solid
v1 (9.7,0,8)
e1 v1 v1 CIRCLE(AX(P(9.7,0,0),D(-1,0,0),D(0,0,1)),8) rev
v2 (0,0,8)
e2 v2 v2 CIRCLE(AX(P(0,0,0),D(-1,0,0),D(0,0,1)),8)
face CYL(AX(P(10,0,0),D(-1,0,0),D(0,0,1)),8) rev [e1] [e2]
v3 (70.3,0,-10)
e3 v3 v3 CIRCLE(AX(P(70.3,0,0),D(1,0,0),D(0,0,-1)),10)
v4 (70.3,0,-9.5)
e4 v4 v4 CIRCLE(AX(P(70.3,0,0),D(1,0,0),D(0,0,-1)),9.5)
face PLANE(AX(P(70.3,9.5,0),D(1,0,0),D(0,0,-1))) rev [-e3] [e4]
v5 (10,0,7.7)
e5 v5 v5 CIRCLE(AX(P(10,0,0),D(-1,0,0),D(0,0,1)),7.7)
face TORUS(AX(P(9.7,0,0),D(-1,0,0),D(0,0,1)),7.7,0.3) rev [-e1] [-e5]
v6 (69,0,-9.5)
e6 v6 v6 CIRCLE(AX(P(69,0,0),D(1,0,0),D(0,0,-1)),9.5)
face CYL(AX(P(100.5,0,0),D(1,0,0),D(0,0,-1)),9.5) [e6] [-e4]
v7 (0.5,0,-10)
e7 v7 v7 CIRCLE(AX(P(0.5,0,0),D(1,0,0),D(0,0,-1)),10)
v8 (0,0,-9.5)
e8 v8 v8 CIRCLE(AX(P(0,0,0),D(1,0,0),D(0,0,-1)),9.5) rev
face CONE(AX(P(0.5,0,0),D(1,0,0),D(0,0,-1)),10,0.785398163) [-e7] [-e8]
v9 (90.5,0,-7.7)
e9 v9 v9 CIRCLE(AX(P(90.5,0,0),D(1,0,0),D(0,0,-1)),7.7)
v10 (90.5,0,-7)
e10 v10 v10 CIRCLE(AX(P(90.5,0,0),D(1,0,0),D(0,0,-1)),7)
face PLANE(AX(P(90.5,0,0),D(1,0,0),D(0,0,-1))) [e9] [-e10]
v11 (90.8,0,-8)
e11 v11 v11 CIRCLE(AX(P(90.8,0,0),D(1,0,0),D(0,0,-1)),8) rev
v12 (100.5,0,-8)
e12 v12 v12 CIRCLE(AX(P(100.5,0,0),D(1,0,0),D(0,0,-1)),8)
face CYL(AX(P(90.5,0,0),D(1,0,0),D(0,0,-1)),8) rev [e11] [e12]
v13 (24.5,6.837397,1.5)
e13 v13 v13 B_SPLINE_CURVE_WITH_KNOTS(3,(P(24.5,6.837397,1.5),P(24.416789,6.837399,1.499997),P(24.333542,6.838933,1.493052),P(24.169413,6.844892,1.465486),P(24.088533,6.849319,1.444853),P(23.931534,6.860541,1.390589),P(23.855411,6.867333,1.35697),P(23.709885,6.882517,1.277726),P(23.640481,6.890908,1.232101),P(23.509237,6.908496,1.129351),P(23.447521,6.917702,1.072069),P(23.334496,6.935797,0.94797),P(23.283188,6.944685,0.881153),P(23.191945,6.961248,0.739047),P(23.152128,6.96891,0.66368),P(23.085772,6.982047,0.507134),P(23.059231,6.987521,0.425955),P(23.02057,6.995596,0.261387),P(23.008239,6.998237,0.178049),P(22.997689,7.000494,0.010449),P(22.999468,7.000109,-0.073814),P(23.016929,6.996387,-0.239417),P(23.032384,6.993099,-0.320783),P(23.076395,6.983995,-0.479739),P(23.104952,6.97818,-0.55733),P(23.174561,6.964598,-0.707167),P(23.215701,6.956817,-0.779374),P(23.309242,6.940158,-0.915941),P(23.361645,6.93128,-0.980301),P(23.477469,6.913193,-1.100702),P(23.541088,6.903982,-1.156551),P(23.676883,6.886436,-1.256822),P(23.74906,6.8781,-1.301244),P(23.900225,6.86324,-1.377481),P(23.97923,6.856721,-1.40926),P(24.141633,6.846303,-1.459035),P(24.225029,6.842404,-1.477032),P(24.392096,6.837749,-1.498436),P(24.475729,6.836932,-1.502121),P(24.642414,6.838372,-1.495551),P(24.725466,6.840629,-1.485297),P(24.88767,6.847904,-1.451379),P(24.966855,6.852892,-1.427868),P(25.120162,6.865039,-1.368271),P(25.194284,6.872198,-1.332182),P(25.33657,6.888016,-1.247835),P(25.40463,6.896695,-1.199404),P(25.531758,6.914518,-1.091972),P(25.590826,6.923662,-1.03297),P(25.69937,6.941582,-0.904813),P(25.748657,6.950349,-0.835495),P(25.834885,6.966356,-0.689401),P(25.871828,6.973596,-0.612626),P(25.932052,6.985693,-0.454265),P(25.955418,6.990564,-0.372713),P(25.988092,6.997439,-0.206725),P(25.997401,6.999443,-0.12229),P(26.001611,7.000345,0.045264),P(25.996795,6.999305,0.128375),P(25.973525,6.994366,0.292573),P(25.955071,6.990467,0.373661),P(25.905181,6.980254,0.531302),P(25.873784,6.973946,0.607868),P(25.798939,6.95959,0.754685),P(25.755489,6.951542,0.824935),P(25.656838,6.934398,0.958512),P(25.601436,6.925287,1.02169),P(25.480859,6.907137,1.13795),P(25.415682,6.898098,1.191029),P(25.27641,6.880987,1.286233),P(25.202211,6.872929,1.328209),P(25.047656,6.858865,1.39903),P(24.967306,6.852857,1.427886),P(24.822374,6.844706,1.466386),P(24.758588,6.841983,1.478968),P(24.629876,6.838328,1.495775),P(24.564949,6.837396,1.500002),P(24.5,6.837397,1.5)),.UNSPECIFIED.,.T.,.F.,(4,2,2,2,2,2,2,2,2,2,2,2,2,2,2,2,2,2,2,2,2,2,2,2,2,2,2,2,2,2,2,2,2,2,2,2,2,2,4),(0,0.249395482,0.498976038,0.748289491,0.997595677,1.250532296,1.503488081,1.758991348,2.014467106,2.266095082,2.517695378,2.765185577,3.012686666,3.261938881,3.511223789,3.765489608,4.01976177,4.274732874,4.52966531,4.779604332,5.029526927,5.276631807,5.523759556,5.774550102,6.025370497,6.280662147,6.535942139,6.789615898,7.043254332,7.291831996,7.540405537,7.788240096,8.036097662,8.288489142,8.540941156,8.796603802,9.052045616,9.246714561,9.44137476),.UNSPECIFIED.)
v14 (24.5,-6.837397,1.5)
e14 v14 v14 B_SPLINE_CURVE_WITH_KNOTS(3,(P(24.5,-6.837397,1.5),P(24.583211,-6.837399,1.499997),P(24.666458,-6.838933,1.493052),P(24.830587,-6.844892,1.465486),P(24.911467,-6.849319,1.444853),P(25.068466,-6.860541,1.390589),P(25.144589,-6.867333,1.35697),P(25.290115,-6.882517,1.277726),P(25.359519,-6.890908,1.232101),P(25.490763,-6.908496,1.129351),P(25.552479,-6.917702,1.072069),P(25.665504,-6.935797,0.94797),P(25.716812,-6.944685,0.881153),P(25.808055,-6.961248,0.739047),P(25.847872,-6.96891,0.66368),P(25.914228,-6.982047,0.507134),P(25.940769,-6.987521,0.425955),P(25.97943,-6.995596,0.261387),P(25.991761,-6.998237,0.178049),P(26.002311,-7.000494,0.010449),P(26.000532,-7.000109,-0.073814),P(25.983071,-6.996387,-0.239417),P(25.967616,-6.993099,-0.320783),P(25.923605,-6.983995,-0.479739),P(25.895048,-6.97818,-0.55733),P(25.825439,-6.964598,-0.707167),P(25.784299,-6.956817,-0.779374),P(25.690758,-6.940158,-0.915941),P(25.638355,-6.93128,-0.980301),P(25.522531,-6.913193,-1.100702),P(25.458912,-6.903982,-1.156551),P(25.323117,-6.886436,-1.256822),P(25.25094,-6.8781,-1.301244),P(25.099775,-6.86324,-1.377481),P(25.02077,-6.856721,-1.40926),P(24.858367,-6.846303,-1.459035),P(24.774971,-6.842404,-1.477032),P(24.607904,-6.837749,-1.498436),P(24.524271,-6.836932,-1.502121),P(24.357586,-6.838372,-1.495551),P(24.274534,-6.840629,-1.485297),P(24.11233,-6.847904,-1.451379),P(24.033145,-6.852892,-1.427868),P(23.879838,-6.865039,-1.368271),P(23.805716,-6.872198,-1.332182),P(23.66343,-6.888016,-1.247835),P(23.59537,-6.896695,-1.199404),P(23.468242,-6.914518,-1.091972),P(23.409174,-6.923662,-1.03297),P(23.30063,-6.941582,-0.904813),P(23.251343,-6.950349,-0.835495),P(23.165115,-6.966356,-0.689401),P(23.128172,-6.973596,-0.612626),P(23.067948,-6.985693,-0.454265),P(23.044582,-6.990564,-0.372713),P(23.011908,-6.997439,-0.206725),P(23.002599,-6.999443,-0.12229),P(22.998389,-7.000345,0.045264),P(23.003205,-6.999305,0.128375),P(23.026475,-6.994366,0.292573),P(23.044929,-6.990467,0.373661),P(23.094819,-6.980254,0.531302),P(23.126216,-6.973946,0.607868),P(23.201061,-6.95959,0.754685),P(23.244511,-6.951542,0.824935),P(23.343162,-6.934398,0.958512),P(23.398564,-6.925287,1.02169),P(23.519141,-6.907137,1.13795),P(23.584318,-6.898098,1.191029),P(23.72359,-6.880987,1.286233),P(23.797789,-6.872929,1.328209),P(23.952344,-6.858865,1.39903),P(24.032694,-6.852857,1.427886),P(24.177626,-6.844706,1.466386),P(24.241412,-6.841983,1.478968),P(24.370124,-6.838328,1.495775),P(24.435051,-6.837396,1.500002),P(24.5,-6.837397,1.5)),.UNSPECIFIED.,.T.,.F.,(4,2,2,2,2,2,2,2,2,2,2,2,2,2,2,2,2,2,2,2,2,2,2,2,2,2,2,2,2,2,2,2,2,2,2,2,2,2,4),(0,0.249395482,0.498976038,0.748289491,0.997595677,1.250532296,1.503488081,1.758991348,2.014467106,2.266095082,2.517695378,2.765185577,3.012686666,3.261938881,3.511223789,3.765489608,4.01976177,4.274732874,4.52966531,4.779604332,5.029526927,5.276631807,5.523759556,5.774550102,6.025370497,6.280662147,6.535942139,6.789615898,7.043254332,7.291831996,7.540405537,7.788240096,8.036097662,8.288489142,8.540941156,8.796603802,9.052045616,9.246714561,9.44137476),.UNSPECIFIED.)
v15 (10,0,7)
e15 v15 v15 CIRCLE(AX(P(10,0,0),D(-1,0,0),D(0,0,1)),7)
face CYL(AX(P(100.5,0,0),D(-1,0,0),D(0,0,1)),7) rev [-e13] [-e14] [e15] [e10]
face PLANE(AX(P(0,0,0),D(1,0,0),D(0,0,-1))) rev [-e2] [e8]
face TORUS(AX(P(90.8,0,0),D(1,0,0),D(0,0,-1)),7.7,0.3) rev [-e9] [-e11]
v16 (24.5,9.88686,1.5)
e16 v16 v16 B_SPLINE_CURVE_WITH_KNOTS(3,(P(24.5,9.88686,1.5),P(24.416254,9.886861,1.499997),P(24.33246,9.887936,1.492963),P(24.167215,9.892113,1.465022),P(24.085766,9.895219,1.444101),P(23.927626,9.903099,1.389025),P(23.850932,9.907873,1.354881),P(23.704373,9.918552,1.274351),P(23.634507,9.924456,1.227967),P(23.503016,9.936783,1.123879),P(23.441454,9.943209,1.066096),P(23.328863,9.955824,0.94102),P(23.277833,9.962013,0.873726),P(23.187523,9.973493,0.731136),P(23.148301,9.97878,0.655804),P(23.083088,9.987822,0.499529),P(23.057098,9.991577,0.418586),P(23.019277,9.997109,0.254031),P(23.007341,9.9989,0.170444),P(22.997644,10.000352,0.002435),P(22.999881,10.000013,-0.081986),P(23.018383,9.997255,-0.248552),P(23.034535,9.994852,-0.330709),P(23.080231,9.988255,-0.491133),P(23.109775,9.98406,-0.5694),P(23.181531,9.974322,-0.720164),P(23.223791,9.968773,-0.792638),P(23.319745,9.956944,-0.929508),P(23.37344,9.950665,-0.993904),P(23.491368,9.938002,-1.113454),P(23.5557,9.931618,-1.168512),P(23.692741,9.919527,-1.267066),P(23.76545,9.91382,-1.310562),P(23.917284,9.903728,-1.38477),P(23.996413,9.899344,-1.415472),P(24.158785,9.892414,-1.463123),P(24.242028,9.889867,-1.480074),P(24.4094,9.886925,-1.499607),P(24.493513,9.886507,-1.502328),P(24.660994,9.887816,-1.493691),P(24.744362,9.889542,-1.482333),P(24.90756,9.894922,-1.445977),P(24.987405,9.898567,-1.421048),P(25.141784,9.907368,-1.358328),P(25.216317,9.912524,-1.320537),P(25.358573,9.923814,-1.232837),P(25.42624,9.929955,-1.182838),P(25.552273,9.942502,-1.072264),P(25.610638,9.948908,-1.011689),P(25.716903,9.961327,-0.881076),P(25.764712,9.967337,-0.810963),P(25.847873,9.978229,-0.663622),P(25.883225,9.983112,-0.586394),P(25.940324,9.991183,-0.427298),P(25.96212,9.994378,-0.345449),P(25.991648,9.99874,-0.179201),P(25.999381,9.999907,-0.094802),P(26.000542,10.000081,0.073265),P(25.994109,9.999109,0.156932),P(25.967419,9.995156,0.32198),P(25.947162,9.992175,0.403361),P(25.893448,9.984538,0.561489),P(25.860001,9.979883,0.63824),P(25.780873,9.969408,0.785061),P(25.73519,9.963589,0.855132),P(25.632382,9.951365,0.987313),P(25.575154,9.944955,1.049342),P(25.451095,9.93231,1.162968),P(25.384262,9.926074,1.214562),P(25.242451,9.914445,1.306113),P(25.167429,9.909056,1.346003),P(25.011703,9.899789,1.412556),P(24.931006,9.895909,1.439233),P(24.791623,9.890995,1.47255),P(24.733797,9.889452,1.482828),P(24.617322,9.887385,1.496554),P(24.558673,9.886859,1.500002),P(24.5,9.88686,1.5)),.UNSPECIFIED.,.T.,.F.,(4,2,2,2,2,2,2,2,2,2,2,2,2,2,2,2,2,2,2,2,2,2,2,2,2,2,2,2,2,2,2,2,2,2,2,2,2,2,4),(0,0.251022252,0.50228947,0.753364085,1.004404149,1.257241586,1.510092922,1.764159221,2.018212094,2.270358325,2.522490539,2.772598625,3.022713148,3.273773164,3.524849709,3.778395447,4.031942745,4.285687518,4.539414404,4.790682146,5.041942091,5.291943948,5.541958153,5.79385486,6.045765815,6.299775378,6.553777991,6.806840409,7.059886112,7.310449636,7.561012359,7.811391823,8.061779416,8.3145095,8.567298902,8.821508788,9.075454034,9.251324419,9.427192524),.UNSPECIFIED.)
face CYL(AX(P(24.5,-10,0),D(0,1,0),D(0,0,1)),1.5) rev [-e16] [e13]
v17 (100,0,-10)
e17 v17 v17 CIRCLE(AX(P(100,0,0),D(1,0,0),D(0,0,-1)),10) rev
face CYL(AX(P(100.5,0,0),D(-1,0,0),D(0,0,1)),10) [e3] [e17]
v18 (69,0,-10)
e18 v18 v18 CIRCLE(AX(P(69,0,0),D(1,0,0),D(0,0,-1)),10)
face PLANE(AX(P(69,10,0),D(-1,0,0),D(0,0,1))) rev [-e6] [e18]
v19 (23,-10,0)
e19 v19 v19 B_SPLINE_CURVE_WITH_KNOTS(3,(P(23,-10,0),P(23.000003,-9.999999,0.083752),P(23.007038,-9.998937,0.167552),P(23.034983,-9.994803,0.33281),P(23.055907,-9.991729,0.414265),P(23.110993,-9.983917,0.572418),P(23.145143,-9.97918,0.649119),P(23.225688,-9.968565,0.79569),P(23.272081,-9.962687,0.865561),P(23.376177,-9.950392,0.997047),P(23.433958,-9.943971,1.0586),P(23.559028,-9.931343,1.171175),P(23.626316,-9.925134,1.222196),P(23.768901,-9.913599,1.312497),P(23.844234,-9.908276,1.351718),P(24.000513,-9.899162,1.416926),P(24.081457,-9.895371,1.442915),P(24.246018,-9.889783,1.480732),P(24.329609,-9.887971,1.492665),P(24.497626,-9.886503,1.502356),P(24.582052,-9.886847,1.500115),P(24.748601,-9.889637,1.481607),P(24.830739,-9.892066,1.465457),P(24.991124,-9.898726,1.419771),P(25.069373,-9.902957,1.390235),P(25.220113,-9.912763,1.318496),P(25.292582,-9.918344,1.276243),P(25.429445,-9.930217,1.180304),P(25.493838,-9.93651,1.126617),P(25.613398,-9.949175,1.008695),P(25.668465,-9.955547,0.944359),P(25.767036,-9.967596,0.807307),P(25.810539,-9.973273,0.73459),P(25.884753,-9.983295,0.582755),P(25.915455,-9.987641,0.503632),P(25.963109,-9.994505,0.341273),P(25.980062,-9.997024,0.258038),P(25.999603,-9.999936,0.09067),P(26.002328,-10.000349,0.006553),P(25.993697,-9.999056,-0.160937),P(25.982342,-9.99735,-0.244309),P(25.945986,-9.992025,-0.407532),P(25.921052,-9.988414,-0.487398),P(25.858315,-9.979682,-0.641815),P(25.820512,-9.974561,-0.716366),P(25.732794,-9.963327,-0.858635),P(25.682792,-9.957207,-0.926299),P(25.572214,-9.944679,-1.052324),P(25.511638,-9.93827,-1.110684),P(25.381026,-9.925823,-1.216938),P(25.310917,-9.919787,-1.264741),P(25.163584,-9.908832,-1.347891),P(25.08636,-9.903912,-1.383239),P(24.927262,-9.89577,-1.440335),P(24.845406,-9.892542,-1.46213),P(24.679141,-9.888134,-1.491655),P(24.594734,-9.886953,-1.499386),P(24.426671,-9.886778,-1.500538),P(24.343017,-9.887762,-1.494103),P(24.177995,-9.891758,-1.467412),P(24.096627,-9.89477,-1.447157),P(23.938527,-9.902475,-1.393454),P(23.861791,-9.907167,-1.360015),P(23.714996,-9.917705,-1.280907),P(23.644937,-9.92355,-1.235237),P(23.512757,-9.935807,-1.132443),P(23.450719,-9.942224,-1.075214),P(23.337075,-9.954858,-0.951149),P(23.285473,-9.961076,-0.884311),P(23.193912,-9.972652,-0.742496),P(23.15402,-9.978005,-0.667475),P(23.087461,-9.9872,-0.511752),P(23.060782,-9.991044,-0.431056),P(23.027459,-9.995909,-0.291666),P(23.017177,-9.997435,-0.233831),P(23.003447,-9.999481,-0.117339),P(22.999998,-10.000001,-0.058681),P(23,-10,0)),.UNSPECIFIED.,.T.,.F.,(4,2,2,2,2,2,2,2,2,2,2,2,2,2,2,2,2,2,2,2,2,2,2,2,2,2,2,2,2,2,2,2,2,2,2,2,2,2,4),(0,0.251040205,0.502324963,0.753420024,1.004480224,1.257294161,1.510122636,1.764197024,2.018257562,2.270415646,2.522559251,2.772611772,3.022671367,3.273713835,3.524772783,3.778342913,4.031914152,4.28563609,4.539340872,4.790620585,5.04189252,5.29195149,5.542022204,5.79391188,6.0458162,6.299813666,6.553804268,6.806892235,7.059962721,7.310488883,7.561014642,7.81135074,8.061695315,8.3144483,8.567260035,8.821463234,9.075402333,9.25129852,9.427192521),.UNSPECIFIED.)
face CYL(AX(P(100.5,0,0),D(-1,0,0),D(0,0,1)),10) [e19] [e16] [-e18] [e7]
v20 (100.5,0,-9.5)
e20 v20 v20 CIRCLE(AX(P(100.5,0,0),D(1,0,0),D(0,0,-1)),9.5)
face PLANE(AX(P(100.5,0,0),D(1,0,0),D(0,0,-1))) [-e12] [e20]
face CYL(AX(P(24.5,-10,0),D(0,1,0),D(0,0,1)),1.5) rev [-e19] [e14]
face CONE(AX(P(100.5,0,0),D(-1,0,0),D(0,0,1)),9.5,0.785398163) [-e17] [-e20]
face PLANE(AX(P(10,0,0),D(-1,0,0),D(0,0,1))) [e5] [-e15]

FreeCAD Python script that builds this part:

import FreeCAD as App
import Part
import Sketcher
from FreeCAD import Vector
Q = App.Units.Quantity


def edges_at(feature, points):
    """Names of the edges that pass closest to the given points."""
    edges = feature.Shape.Edges
    near = lambda p: min(range(len(edges)), key=lambda i: edges[i].distToShape(Part.Vertex(*p))[0])
    return sorted({f"Edge{near(p) + 1}" for p in points})


def add_polygon(sketch, points):
    """Adds a closed chain of lines whose ends are joined by coincident constraints."""
    first, n = sketch.GeometryCount, len(points)
    for a, b in zip(points, points[1:] + points[:1]):
        sketch.addGeometry(Part.LineSegment(App.Vector(*a, 0), App.Vector(*b, 0)), False)
    for i in range(n):
        sketch.addConstraint(Sketcher.Constraint("Coincident", first + i, 2, first + (i + 1) % n, 1))

doc = App.newDocument("Part")
body = doc.addObject("PartDesign::Body", "Body")

# Sketch on YZ plane
sketch1 = body.newObject("Sketcher::SketchObject", "Sketch")
sketch1.AttachmentSupport = (doc.getObject("YZ_Plane"), [""])
sketch1.MapMode = "FlatFace"
sketch1.addGeometry([
    Part.Circle(Vector(0, 0, 0), Vector(0, 0, 1), 10),
    Part.Circle(Vector(0, 0, 0), Vector(0, 0, 1), 7),
], False)
sketch1.addConstraint([
    Sketcher.Constraint("Coincident", 0, 3, -1, 1),
    Sketcher.Constraint("Coincident", 1, 3, -1, 1),
    Sketcher.Constraint("Diameter", 0, Q("20 mm")),
    Sketcher.Constraint("Diameter", 1, Q("14 mm")),
])
pad1 = body.newObject("PartDesign::Pad", "Pad")
pad1.Profile = sketch1
pad1.Length = 100.5

# Sketch on YZ plane
sketch2 = body.newObject("Sketcher::SketchObject", "Sketch001")
sketch2.AttachmentSupport = (doc.getObject("YZ_Plane"), [""])
sketch2.MapMode = "FlatFace"
sketch2.addGeometry(Part.Circle(Vector(0, 0, 0), Vector(0, 0, 1), 8), False)
sketch2.addConstraint([
    Sketcher.Constraint("Coincident", 0, 3, -1, 1),
    Sketcher.Constraint("Diameter", 0, Q("16 mm")),
])
pocket1 = body.newObject("PartDesign::Pocket", "Pocket")
pocket1.Profile = sketch2
pocket1.Length = 10
pocket1.Reversed = True

# Sketch on YZ plane
sketch3 = body.newObject("Sketcher::SketchObject", "Sketch002")
sketch3.AttachmentSupport = (doc.getObject("YZ_Plane"), [""])
sketch3.MapMode = "FlatFace"
sketch3.AttachmentOffset = App.Placement(Vector(0, 0, 100.5), App.Rotation())
sketch3.addGeometry(Part.Circle(Vector(0, 0, 0), Vector(0, 0, 1), 8), False)
sketch3.addConstraint([
    Sketcher.Constraint("Coincident", 0, 3, -1, 1),
    Sketcher.Constraint("Diameter", 0, Q("16 mm")),
])
pocket2 = body.newObject("PartDesign::Pocket", "Pocket001")
pocket2.Profile = sketch3
pocket2.Length = 10

# Sketch on XY plane
sketch4 = body.newObject("Sketcher::SketchObject", "Sketch003")
sketch4.AttachmentSupport = (doc.getObject("XY_Plane"), [""])
sketch4.MapMode = "FlatFace"
add_polygon(sketch4, [(69, 10), (69, 9.5), (70.3, 9.5), (70.3, 10)])  # lines 0-3
sketch4.addConstraint([
    Sketcher.Constraint("Vertical", 0),
    Sketcher.Constraint("Horizontal", 1),
    Sketcher.Constraint("Vertical", 2),
    Sketcher.Constraint("Horizontal", 3),
    Sketcher.Constraint("DistanceX", 1, 1, 1, 2, Q("1.3 mm")),
    Sketcher.Constraint("DistanceY", 0, 2, 0, 1, Q("0.5 mm")),
    Sketcher.Constraint("DistanceX", -1, 1, 0, 2, Q("69 mm")),
    Sketcher.Constraint("DistanceY", -1, 1, 2, 2, Q("10 mm")),
])
groove = body.newObject("PartDesign::Groove", "Groove")
groove.Profile = sketch4
groove.ReferenceAxis = (sketch4, ["H_Axis"])
groove.Angle = 360

# Sketch on XZ plane
sketch5 = body.newObject("Sketcher::SketchObject", "Sketch004")
sketch5.AttachmentSupport = (doc.getObject("XZ_Plane"), [""])
sketch5.MapMode = "FlatFace"
sketch5.addGeometry(Part.Circle(Vector(24.5, 0, 0), Vector(0, 0, 1), 1.5), False)
sketch5.addConstraint([
    Sketcher.Constraint("PointOnObject", 0, 3, -1),
    Sketcher.Constraint("Diameter", 0, Q("3 mm")),
    Sketcher.Constraint("DistanceX", -1, 1, 0, 3, Q("24.5 mm")),
])
pocket3 = body.newObject("PartDesign::Pocket", "Pocket002")
pocket3.Profile = sketch5
pocket3.Length = 20
pocket3.Midplane = True
doc.recompute()

chamfer = body.newObject("PartDesign::Chamfer", "Chamfer")
chamfer.Base = (pocket3, edges_at(pocket3, [(0, 0, 10), (100.5, 0, 10)]))
chamfer.Size = 0.5
doc.recompute()

fillet = body.newObject("PartDesign::Fillet", "Fillet")
fillet.Base = (chamfer, edges_at(chamfer, [(10, 0, -8), (90.5, 0, 8)]))
fillet.Radius = 0.3

doc.recompute()
